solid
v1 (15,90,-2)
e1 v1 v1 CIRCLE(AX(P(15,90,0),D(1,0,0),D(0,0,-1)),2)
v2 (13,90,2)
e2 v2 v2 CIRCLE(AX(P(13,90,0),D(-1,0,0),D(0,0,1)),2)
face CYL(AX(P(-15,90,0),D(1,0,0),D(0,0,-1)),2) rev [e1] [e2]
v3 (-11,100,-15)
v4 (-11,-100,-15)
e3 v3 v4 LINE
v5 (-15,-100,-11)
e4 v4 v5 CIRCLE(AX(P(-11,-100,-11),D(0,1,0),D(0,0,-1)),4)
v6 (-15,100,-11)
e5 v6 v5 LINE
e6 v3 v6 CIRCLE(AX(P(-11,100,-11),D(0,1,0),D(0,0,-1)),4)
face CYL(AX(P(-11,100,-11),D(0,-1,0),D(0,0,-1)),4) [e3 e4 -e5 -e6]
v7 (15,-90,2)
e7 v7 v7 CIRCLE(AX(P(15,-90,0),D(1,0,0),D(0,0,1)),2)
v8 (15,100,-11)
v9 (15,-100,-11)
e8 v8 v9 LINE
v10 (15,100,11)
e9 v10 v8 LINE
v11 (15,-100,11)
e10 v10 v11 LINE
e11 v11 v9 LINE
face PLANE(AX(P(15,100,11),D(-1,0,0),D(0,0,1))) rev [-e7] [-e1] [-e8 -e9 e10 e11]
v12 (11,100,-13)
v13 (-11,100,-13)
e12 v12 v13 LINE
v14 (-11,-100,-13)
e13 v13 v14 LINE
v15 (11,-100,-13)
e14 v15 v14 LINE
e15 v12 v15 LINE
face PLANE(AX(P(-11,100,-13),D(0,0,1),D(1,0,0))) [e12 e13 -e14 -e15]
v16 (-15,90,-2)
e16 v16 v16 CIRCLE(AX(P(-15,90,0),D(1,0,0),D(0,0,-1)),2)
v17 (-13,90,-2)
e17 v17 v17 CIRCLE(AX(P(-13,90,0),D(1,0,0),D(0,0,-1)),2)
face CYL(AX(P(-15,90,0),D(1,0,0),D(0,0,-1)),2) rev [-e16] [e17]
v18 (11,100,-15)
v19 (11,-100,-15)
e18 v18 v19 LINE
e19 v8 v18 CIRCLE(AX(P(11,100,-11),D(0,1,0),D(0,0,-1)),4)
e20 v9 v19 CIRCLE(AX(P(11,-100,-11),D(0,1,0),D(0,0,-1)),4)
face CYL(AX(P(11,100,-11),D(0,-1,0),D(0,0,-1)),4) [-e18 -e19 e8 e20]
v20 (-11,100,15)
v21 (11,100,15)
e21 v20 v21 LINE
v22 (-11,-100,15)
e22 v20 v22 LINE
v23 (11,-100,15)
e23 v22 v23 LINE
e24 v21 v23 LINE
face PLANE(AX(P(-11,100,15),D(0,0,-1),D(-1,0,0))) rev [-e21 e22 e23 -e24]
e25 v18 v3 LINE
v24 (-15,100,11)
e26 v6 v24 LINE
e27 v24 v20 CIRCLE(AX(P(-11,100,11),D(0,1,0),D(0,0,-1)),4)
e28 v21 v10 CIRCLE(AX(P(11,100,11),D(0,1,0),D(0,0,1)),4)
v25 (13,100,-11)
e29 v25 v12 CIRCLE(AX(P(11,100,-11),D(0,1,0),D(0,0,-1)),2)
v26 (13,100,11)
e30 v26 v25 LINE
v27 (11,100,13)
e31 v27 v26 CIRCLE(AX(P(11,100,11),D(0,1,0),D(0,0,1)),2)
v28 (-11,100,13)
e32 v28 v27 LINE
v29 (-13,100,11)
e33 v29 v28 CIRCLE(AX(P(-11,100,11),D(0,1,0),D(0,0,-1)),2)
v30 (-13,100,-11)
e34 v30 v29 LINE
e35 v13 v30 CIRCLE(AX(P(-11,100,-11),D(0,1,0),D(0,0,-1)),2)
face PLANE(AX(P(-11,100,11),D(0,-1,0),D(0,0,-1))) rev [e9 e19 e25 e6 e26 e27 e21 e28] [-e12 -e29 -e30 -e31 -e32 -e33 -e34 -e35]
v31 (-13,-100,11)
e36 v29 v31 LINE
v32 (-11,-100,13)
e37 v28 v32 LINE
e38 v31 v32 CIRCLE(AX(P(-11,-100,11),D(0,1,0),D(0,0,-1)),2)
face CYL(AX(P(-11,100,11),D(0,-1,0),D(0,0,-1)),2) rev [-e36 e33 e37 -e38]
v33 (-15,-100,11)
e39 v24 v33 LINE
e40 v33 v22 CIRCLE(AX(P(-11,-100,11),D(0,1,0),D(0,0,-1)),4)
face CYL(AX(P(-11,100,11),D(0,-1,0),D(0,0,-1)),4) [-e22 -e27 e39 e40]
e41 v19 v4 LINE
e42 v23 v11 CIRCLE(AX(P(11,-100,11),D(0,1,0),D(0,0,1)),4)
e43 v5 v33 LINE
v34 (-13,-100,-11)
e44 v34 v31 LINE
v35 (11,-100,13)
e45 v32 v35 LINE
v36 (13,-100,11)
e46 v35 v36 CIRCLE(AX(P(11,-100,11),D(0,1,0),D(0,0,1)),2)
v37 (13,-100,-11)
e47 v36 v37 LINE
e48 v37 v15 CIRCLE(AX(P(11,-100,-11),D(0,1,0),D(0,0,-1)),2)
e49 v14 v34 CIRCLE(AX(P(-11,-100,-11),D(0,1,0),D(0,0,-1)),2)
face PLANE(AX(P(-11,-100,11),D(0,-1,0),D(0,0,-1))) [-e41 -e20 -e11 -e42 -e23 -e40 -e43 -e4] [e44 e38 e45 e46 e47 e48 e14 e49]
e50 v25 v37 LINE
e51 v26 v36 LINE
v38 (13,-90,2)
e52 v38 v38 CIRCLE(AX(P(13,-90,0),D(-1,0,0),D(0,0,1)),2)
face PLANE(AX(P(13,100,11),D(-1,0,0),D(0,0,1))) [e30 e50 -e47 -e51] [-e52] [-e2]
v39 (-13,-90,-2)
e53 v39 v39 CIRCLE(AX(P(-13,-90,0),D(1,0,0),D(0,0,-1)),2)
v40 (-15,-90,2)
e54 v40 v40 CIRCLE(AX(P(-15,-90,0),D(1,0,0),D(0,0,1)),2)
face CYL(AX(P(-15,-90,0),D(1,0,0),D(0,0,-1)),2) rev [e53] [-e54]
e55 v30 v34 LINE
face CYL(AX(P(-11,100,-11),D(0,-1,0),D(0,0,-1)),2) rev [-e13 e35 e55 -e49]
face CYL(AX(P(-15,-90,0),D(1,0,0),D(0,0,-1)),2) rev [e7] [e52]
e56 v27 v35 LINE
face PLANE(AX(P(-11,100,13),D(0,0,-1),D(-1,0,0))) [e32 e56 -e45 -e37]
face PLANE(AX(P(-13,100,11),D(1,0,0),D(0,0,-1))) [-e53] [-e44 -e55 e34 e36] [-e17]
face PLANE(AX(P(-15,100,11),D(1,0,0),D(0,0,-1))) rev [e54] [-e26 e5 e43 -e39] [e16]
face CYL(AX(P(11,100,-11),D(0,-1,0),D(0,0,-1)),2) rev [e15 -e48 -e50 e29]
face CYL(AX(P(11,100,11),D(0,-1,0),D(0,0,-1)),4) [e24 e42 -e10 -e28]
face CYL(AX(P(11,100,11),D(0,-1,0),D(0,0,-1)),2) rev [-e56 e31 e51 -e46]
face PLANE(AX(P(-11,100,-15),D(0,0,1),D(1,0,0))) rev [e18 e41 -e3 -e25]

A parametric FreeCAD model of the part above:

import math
import FreeCAD as App
import Part
import Sketcher
Q = App.Units.Quantity

doc = App.newDocument("Part")
body = doc.addObject("PartDesign::Body", "Body")

# Sketch on XZ plane
sketch1 = body.newObject("Sketcher::SketchObject", "Sketch")
sketch1.AttachmentSupport = (doc.getObject("XZ_Plane"), [""])
sketch1.MapMode = "FlatFace"
sketch1.addGeometry([
    Part.LineSegment(App.Vector(-11, 15, 0), App.Vector(11, 15, 0)),  # 0
    Part.ArcOfCircle(Part.Circle(App.Vector(11, 11, 0), App.Vector(0, 0, 1), 4), math.radians(0), math.radians(90)),  # 1
    Part.LineSegment(App.Vector(15, 11, 0), App.Vector(15, -11, 0)),  # 2
    Part.ArcOfCircle(Part.Circle(App.Vector(11, -11, 0), App.Vector(0, 0, 1), 4), math.radians(-90), math.radians(0)),  # 3
    Part.LineSegment(App.Vector(11, -15, 0), App.Vector(-11, -15, 0)),  # 4
    Part.ArcOfCircle(Part.Circle(App.Vector(-11, -11, 0), App.Vector(0, 0, 1), 4), math.radians(180), math.radians(270)),  # 5
    Part.LineSegment(App.Vector(-15, -11, 0), App.Vector(-15, 11, 0)),  # 6
    Part.ArcOfCircle(Part.Circle(App.Vector(-11, 11, 0), App.Vector(0, 0, 1), 4), math.radians(90), math.radians(180)),  # 7
    Part.LineSegment(App.Vector(11, 13, 0), App.Vector(-11, 13, 0)),  # 8
    Part.ArcOfCircle(Part.Circle(App.Vector(-11, 11, 0), App.Vector(0, 0, 1), 2), math.radians(90), math.radians(180)),  # 9
    Part.LineSegment(App.Vector(-13, 11, 0), App.Vector(-13, -11, 0)),  # 10
    Part.ArcOfCircle(Part.Circle(App.Vector(-11, -11, 0), App.Vector(0, 0, 1), 2), math.radians(-180), math.radians(-90)),  # 11
    Part.LineSegment(App.Vector(-11, -13, 0), App.Vector(11, -13, 0)),  # 12
    Part.ArcOfCircle(Part.Circle(App.Vector(11, -11, 0), App.Vector(0, 0, 1), 2), math.radians(-90), math.radians(0)),  # 13
    Part.LineSegment(App.Vector(13, -11, 0), App.Vector(13, 11, 0)),  # 14
    Part.ArcOfCircle(Part.Circle(App.Vector(11, 11, 0), App.Vector(0, 0, 1), 2), math.radians(0), math.radians(90)),  # 15
], False)
sketch1.addConstraint([
    Sketcher.Constraint("Tangent", 0, 2, 1, 2),
    Sketcher.Constraint("Tangent", 1, 1, 2, 1),
    Sketcher.Constraint("Tangent", 2, 2, 3, 2),
    Sketcher.Constraint("Tangent", 3, 1, 4, 1),
    Sketcher.Constraint("Tangent", 4, 2, 5, 2),
    Sketcher.Constraint("Tangent", 5, 1, 6, 1),
    Sketcher.Constraint("Tangent", 6, 2, 7, 2),
    Sketcher.Constraint("Tangent", 7, 1, 0, 1),
    Sketcher.Constraint("Tangent", 8, 2, 9, 1),
    Sketcher.Constraint("Tangent", 9, 2, 10, 1),
    Sketcher.Constraint("Tangent", 10, 2, 11, 1),
    Sketcher.Constraint("Tangent", 11, 2, 12, 1),
    Sketcher.Constraint("Tangent", 12, 2, 13, 1),
    Sketcher.Constraint("Tangent", 13, 2, 14, 1),
    Sketcher.Constraint("Tangent", 14, 2, 15, 1),
    Sketcher.Constraint("Tangent", 15, 2, 8, 1),
    Sketcher.Constraint("Horizontal", 0),
    Sketcher.Constraint("Vertical", 2),
    Sketcher.Constraint("Horizontal", 4),
    Sketcher.Constraint("Vertical", 6),
    Sketcher.Constraint("Horizontal", 8),
    Sketcher.Constraint("Vertical", 10),
    Sketcher.Constraint("Horizontal", 12),
    Sketcher.Constraint("Vertical", 14),
    Sketcher.Constraint("Coincident", 9, 3, 7, 3),
    Sketcher.Constraint("Coincident", 11, 3, 5, 3),
    Sketcher.Constraint("Coincident", 13, 3, 3, 3),
    Sketcher.Constraint("Equal", 1, 3),
    Sketcher.Constraint("Equal", 3, 5),
    Sketcher.Constraint("Equal", 5, 7),
    Sketcher.Constraint("Equal", 13, 15),
    Sketcher.Constraint("Symmetric", 1, 3, 5, 3, -1, 1),
    Sketcher.Constraint("Equal", 12, 2),
    Sketcher.Constraint("Radius", 1, Q("4 mm")),
    Sketcher.Constraint("Radius", 9, Q("2 mm")),
    Sketcher.Constraint("DistanceX", 0, 1, 0, 2, Q("22 mm")),
])
pad1 = body.newObject("PartDesign::Pad", "Pad")
pad1.Profile = sketch1
pad1.Length = 200
pad1.Midplane = True

# Sketch on YZ plane
sketch2 = body.newObject("Sketcher::SketchObject", "Sketch001")
sketch2.AttachmentSupport = (doc.getObject("YZ_Plane"), [""])
sketch2.MapMode = "FlatFace"
sketch2.addGeometry([
    Part.Circle(App.Vector(90, 0, 0), App.Vector(0, 0, 1), 2),
    Part.Circle(App.Vector(-90, 0, 0), App.Vector(0, 0, 1), 2),
], False)
sketch2.addConstraint([
    Sketcher.Constraint("Equal", 0, 1),
    Sketcher.Constraint("Symmetric", 0, 3, 1, 3, -1, 1),
    Sketcher.Constraint("PointOnObject", 0, 3, -1),
    Sketcher.Constraint("Diameter", 0, Q("4 mm")),
    Sketcher.Constraint("DistanceX", -1, 1, 0, 3, Q("90 mm")),
])
pocket1 = body.newObject("PartDesign::Pocket", "Pocket")
pocket1.Profile = sketch2
pocket1.Type = "ThroughAll"
pocket1.Midplane = True

doc.recompute()
